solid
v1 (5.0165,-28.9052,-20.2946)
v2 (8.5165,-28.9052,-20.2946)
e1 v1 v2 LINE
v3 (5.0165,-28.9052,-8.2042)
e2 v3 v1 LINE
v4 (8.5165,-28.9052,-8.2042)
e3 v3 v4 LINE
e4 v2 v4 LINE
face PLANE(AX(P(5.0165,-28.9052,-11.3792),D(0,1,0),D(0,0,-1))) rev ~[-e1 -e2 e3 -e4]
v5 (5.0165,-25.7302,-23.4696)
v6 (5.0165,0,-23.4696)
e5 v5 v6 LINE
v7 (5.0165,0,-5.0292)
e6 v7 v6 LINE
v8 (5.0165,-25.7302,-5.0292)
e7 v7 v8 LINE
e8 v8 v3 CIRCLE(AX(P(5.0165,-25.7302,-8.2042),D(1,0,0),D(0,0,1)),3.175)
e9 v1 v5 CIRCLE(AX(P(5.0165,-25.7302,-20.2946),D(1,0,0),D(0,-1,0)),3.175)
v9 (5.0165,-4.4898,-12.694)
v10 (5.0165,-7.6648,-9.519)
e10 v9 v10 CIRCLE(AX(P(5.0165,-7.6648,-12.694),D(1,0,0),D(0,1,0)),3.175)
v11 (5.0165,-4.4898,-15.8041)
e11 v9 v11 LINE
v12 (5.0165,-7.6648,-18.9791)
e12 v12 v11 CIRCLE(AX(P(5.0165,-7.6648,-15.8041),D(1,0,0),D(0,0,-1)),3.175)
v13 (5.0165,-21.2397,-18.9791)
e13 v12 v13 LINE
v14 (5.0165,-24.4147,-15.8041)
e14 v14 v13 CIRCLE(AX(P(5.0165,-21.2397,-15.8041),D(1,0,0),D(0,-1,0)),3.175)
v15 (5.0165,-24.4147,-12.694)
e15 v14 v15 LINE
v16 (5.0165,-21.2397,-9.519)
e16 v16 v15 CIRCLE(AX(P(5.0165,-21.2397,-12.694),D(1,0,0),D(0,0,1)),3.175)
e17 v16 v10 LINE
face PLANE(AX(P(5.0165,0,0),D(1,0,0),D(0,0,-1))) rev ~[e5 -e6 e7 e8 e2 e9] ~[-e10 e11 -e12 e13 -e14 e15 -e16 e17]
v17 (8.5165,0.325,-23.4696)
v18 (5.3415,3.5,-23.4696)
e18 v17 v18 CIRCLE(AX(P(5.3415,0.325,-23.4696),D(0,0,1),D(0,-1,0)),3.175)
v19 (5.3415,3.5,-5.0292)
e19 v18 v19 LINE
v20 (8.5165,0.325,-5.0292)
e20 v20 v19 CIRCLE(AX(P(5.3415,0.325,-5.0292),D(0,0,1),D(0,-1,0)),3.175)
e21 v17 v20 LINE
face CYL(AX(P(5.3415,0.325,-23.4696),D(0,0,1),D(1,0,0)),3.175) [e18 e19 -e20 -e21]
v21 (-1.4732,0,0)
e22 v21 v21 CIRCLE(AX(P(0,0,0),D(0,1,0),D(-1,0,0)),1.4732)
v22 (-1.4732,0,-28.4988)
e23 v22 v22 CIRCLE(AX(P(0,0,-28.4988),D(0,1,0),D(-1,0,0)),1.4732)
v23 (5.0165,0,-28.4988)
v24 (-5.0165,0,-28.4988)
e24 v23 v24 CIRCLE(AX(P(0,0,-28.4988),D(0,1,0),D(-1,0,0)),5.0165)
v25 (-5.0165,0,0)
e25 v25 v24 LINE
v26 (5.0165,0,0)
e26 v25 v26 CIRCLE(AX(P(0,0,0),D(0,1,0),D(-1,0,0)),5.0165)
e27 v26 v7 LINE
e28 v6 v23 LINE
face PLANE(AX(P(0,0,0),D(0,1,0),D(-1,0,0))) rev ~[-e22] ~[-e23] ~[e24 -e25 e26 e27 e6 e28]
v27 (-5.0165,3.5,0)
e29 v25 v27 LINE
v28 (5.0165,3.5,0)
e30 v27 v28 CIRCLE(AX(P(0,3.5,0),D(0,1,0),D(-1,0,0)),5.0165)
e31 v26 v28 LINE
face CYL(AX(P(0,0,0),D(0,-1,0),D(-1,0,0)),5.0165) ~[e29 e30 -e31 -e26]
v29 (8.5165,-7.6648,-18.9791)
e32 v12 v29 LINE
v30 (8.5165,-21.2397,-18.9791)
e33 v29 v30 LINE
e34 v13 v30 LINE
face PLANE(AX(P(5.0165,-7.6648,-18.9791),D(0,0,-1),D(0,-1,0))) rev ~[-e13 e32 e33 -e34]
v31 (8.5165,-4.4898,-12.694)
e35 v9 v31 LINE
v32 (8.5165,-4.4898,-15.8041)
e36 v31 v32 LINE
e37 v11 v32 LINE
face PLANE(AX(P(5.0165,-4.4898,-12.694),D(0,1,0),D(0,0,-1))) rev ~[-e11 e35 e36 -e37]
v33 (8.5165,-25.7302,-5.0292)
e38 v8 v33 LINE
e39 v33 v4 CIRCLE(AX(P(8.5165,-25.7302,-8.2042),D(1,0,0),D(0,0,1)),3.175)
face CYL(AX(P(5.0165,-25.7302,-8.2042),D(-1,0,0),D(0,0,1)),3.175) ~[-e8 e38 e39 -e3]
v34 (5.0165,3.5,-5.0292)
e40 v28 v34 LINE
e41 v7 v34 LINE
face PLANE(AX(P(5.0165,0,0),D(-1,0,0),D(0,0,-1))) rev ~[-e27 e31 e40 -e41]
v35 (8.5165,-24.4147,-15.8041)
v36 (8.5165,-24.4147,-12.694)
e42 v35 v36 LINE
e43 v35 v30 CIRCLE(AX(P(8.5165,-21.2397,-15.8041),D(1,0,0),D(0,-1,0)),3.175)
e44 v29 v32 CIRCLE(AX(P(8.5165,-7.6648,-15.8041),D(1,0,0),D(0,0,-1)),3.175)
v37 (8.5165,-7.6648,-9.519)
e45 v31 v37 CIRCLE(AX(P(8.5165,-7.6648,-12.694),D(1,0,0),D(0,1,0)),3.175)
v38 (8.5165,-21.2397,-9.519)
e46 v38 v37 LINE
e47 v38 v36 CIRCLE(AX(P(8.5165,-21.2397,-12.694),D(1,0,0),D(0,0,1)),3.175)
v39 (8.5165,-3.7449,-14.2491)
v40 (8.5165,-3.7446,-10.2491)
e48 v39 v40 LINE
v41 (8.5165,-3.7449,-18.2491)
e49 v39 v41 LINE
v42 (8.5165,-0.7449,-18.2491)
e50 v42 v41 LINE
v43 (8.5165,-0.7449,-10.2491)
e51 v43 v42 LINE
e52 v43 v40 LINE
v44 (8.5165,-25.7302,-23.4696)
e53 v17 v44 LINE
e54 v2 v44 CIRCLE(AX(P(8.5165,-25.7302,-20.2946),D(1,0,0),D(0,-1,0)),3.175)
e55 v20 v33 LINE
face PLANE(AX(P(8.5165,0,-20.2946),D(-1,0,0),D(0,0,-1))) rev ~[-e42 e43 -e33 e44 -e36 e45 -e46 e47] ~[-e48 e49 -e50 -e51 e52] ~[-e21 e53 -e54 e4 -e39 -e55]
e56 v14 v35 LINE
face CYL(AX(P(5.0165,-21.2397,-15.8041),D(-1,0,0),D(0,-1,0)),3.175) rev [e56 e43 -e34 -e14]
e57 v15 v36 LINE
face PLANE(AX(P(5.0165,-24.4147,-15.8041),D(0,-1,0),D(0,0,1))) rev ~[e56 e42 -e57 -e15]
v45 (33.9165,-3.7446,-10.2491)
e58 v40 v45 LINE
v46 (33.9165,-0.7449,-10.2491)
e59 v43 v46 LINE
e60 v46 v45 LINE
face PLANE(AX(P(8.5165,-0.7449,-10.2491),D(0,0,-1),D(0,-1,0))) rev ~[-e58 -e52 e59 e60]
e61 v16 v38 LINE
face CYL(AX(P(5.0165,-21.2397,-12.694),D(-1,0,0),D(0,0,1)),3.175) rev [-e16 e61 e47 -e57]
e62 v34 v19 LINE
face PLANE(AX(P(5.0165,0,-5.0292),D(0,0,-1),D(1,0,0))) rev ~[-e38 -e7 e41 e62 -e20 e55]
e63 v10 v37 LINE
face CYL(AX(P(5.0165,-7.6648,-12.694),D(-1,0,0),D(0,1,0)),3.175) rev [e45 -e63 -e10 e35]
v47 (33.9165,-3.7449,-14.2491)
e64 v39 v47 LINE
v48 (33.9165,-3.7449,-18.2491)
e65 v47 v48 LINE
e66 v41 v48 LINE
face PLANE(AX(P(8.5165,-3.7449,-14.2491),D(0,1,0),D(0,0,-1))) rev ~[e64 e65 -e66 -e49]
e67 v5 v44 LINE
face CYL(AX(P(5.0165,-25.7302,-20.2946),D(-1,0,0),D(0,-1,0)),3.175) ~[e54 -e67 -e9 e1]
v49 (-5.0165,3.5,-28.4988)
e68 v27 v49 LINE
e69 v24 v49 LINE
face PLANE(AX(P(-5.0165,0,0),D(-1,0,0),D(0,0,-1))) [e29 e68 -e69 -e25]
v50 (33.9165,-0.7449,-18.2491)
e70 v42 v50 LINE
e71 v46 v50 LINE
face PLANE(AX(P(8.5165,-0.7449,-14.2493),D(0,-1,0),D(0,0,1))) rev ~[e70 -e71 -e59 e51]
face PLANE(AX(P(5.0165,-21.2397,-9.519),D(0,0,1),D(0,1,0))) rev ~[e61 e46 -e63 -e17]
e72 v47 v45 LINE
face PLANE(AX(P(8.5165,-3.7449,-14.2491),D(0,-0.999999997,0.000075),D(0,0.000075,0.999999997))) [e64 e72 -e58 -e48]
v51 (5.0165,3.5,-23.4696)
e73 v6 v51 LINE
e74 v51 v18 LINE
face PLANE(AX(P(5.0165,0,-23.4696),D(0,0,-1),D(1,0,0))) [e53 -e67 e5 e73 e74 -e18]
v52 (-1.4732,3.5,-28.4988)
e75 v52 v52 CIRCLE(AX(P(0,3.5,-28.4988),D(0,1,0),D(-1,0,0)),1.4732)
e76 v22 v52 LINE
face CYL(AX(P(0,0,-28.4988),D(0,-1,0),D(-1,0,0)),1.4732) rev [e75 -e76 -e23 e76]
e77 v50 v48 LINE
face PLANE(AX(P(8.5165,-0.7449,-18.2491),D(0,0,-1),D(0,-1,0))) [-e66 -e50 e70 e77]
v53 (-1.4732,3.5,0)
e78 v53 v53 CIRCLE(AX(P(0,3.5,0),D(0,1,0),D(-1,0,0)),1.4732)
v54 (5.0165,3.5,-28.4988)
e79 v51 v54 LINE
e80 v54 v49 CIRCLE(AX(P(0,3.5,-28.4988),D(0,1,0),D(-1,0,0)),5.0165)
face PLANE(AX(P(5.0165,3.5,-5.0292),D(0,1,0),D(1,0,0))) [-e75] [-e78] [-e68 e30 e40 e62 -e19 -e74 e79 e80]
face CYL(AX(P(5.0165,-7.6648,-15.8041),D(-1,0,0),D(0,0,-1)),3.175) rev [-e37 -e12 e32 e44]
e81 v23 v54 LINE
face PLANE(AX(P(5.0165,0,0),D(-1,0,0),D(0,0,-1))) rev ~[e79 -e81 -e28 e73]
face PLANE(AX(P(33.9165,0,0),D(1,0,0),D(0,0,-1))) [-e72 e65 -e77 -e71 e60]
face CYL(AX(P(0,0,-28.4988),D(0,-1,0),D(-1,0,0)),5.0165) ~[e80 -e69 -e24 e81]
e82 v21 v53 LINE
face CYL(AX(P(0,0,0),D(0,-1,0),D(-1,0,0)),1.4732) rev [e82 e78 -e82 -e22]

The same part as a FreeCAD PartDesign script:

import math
import FreeCAD as App
import Part
import Sketcher

V = App.Vector
Q = App.Units.Quantity


def edges_at(feature, points):
    """Names of the edges that pass closest to the given points."""
    edges = feature.Shape.Edges
    near = lambda p: min(range(len(edges)), key=lambda i: edges[i].distToShape(Part.Vertex(*p))[0])
    return sorted({f"Edge{near(p) + 1}" for p in points})


def add_polygon(sketch, points):
    """Adds a closed chain of lines whose ends are joined by coincident constraints."""
    first, n = sketch.GeometryCount, len(points)
    for a, b in zip(points, points[1:] + points[:1]):
        sketch.addGeometry(Part.LineSegment(App.Vector(*a, 0), App.Vector(*b, 0)), False)
    for i in range(n):
        sketch.addConstraint(Sketcher.Constraint("Coincident", first + i, 2, first + (i + 1) % n, 1))

doc = App.newDocument("Part")
body = doc.addObject("PartDesign::Body", "Body")
body.AllowCompound = True

sketch1 = body.newObject("Sketcher::SketchObject", "Sketch")
sketch1.AttachmentSupport = (doc.getObject("XZ_Plane"), [""])
sketch1.MapMode = "FlatFace"
sketch1.addGeometry(Part.ArcOfCircle(Part.Circle(V(0, 0, 0), V(0, 0, 1), 5.0165), math.radians(0), math.radians(180)), False)
sketch1.addGeometry(Part.LineSegment(V(5.0165, 0, 0), V(5.0165, -28.4988, 0)), False)
sketch1.addGeometry(Part.ArcOfCircle(Part.Circle(V(0, -28.4988, 0), V(0, 0, 1), 5.0165), math.radians(180), math.radians(360)), False)
sketch1.addGeometry(Part.LineSegment(V(-5.0165, -28.4988, 0), V(-5.0165, 0, 0)), False)
sketch1.addGeometry(Part.Circle(V(0, 0, 0), V(0, 0, 1), 1.4732), False)
sketch1.addGeometry(Part.Circle(V(0, -28.4988, 0), V(0, 0, 1), 1.4732), False)
sketch1.addConstraint(Sketcher.Constraint("Tangent", 0, 1, 1, 1))
sketch1.addConstraint(Sketcher.Constraint("Tangent", 1, 2, 2, 2))
sketch1.addConstraint(Sketcher.Constraint("Tangent", 2, 1, 3, 1))
sketch1.addConstraint(Sketcher.Constraint("Tangent", 3, 2, 0, 2))
sketch1.addConstraint(Sketcher.Constraint("Vertical", 1))
sketch1.addConstraint(Sketcher.Constraint("Vertical", 3))
sketch1.addConstraint(Sketcher.Constraint("Coincident", 0, 3, -1, 1))
sketch1.addConstraint(Sketcher.Constraint("Coincident", 4, 3, -1, 1))
sketch1.addConstraint(Sketcher.Constraint("Coincident", 5, 3, 2, 3))
sketch1.addConstraint(Sketcher.Constraint("Equal", 4, 5))
sketch1.addConstraint(Sketcher.Constraint("Diameter", 4, Q("0.116 in")))
sketch1.addConstraint(Sketcher.Constraint("Radius", 0, Q("0.1975 in")))
sketch1.addConstraint(Sketcher.Constraint("DistanceY", 1, 2, 1, 1, Q("1.122 in")))
pad1 = body.newObject("PartDesign::Pad", "Pad")
pad1.Profile = sketch1
pad1.Length = Q("0.1377953 in")
pad1.Reversed = True

sketch2 = body.newObject("Sketcher::SketchObject", "Sketch001")
sketch2.AttachmentSupport = (doc.getObject("YZ_Plane"), [""])
sketch2.MapMode = "FlatFace"
sketch2.AttachmentOffset = App.Placement(V(0, 0, 0.1975 * 25.4), App.Rotation())
sketch2.addGeometry(Part.LineSegment(V(0, -23.4696, 0), V(0, -5.0292, 0)), False)
sketch2.addGeometry(Part.LineSegment(V(0, -5.0292, 0), V(-25.7302, -5.0292, 0)), False)
sketch2.addGeometry(Part.ArcOfCircle(Part.Circle(V(-25.7302, -8.2042, 0), V(0, 0, 1), 3.175), math.radians(90), math.radians(180)), False)
sketch2.addGeometry(Part.LineSegment(V(-28.9052, -8.2042, 0), V(-28.9052, -20.2946, 0)), False)
sketch2.addGeometry(Part.ArcOfCircle(Part.Circle(V(-25.7302, -20.2946, 0), V(0, 0, 1), 3.175), math.radians(180), math.radians(270)), False)
sketch2.addGeometry(Part.LineSegment(V(-25.7302, -23.4696, 0), V(0, -23.4696, 0)), False)
sketch2.addGeometry(Part.ArcOfCircle(Part.Circle(V(-21.2397, -15.8041, 0), V(0, 0, 1), 3.175), math.radians(180), math.radians(270)), False)
sketch2.addGeometry(Part.LineSegment(V(-24.4147, -15.8041, 0), V(-24.4147, -12.694, 0)), False)
sketch2.addGeometry(Part.ArcOfCircle(Part.Circle(V(-21.2397, -12.694, 0), V(0, 0, 1), 3.175), math.radians(90), math.radians(180)), False)
sketch2.addGeometry(Part.LineSegment(V(-21.2397, -9.519, 0), V(-7.6648, -9.519, 0)), False)
sketch2.addGeometry(Part.ArcOfCircle(Part.Circle(V(-7.6648, -12.694, 0), V(0, 0, 1), 3.175), math.radians(0), math.radians(90)), False)
sketch2.addGeometry(Part.LineSegment(V(-4.4898, -12.694, 0), V(-4.4898, -15.8041, 0)), False)
sketch2.addGeometry(Part.ArcOfCircle(Part.Circle(V(-7.6648, -15.8041, 0), V(0, 0, 1), 3.175), math.radians(-90), math.radians(0)), False)
sketch2.addGeometry(Part.LineSegment(V(-7.6648, -18.9791, 0), V(-21.2397, -18.9791, 0)), False)
sketch2.addConstraint(Sketcher.Constraint("Coincident", 0, 2, 1, 1))
sketch2.addConstraint(Sketcher.Constraint("Tangent", 1, 2, 2, 1))
sketch2.addConstraint(Sketcher.Constraint("Tangent", 2, 2, 3, 1))
sketch2.addConstraint(Sketcher.Constraint("Tangent", 3, 2, 4, 1))
sketch2.addConstraint(Sketcher.Constraint("Tangent", 4, 2, 5, 1))
sketch2.addConstraint(Sketcher.Constraint("Coincident", 5, 2, 0, 1))
sketch2.addConstraint(Sketcher.Constraint("Tangent", 6, 1, 7, 1))
sketch2.addConstraint(Sketcher.Constraint("Tangent", 7, 2, 8, 2))
sketch2.addConstraint(Sketcher.Constraint("Tangent", 8, 1, 9, 1))
sketch2.addConstraint(Sketcher.Constraint("Tangent", 9, 2, 10, 2))
sketch2.addConstraint(Sketcher.Constraint("Tangent", 10, 1, 11, 1))
sketch2.addConstraint(Sketcher.Constraint("Tangent", 11, 2, 12, 2))
sketch2.addConstraint(Sketcher.Constraint("Tangent", 12, 1, 13, 1))
sketch2.addConstraint(Sketcher.Constraint("Tangent", 13, 2, 6, 2))
sketch2.addConstraint(Sketcher.Constraint("Vertical", 0))
sketch2.addConstraint(Sketcher.Constraint("Horizontal", 1))
sketch2.addConstraint(Sketcher.Constraint("Vertical", 3))
sketch2.addConstraint(Sketcher.Constraint("Horizontal", 5))
sketch2.addConstraint(Sketcher.Constraint("Vertical", 7))
sketch2.addConstraint(Sketcher.Constraint("Horizontal", 9))
sketch2.addConstraint(Sketcher.Constraint("Vertical", 11))
sketch2.addConstraint(Sketcher.Constraint("Horizontal", 13))
sketch2.addConstraint(Sketcher.Constraint("Equal", 2, 4))
sketch2.addConstraint(Sketcher.Constraint("Equal", 4, 6))
sketch2.addConstraint(Sketcher.Constraint("Equal", 6, 8))
sketch2.addConstraint(Sketcher.Constraint("Equal", 8, 10))
sketch2.addConstraint(Sketcher.Constraint("Equal", 10, 12))
sketch2.addConstraint(Sketcher.Constraint("PointOnObject", 0, 2, -2))
sketch2.addConstraint(Sketcher.Constraint("Radius", 2, Q("0.125 in")))
sketch2.addConstraint(Sketcher.Constraint("DistanceY", 0, 2, -1, 1, Q("0.198 in")))
sketch2.addConstraint(Sketcher.Constraint("DistanceX", 2, 2, -1, 1, Q("1.138 in")))
sketch2.addConstraint(Sketcher.Constraint("DistanceY", 0, 1, 0, 2, Q("0.726 in")))
sketch2.addConstraint(Sketcher.Constraint("DistanceX", 9, 1, 9, 2, Q("13.575 mm")))
sketch2.addConstraint(Sketcher.Constraint("DistanceY", 7, 1, 7, 2, Q("3.11 mm")))
sketch2.addConstraint(Sketcher.Constraint("DistanceX", 6, 3, -1, 1, Q("0.8362 in")))
sketch2.addConstraint(Sketcher.Constraint("DistanceY", 6, 3, -1, 1, Q("0.6222 in")))
pad2 = body.newObject("PartDesign::Pad", "Pad001")
pad2.Profile = sketch2
pad2.Length = Q("0.1377953 in")

sketch3 = body.newObject("Sketcher::SketchObject", "Sketch002")
sketch3.AttachmentSupport = (doc.getObject("XZ_Plane"), [""])
sketch3.MapMode = "FlatFace"
add_polygon(sketch3, [(5.0165, -23.4696), (5.0165, -5.0292), (8.5165, -5.0292), (8.5165, -23.4696)])
sketch3.addConstraint(Sketcher.Constraint("Vertical", 0))
sketch3.addConstraint(Sketcher.Constraint("Horizontal", 1))
sketch3.addConstraint(Sketcher.Constraint("Vertical", 2))
sketch3.addConstraint(Sketcher.Constraint("Horizontal", 3))
sketch3.addConstraint(Sketcher.Constraint("DistanceY", 0, 1, 0, 2, Q("0.726 in")))
sketch3.addConstraint(Sketcher.Constraint("DistanceX", 1, 1, 1, 2, Q("0.1378 in")))
sketch3.addConstraint(Sketcher.Constraint("DistanceY", 0, 2, -1, 1, Q("0.198 in")))
sketch3.addConstraint(Sketcher.Constraint("DistanceX", -1, 1, 0, 2, Q("0.1975 in")))
pad3 = body.newObject("PartDesign::Pad", "Pad002")
pad3.Profile = sketch3
pad3.Length = Q("0.1377953 in")
pad3.Reversed = True
doc.recompute()

fillet = body.newObject("PartDesign::Fillet", "Fillet")
fillet.Base = (pad3, edges_at(pad3, [(8.517, 3.5, -14.249)]))
fillet.Radius = Q("0.125 in")

sketch4 = body.newObject("Sketcher::SketchObject", "Sketch003")
sketch4.AttachmentSupport = (doc.getObject("YZ_Plane"), [""])
sketch4.MapMode = "FlatFace"
sketch4.AttachmentOffset = App.Placement(V(0, 0, 0.3352953 * 25.4), App.Rotation())
add_polygon(sketch4, [(-3.7446, -10.2491), (-3.7449, -14.2491), (-3.7449, -18.2491), (-0.7449, -18.2491), (-0.7449, -10.2491)])
sketch4.addConstraint(Sketcher.Constraint("Vertical", 1))
sketch4.addConstraint(Sketcher.Constraint("Horizontal", 2))
sketch4.addConstraint(Sketcher.Constraint("Vertical", 3))
sketch4.addConstraint(Sketcher.Constraint("Horizontal", 4))
sketch4.addConstraint(Sketcher.Constraint("DistanceX", 0, 2, 4, 2, Q("0 in")))
sketch4.addConstraint(Sketcher.Constraint("DistanceX", 2, 1, 2, 2, Q("0.1181 in")))
sketch4.addConstraint(Sketcher.Constraint("DistanceY", 0, 2, -1, 1, Q("0.561 in")))
sketch4.addConstraint(Sketcher.Constraint("DistanceY", 1, 2, 1, 1, Q("4 mm")))
sketch4.addConstraint(Sketcher.Constraint("DistanceY", 3, 1, 3, 2, Q("8 mm")))
sketch4.addConstraint(Sketcher.Constraint("DistanceX", 0, 2, -1, 1, Q("3.745 mm")))
pad4 = body.newObject("PartDesign::Pad", "Pad003")
pad4.Profile = sketch4
pad4.Length = Q("1 in")

doc.recompute()
